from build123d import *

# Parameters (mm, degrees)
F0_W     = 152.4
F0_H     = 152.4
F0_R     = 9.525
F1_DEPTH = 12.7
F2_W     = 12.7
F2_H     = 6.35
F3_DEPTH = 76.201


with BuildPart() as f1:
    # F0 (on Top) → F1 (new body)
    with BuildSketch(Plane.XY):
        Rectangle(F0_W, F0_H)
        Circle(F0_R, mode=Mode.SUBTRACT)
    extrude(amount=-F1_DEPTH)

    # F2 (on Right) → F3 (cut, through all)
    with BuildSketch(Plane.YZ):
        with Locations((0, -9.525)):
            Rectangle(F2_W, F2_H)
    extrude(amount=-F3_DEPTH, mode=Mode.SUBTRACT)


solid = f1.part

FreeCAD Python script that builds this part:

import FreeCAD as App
import Part
import Sketcher

V = App.Vector
Q = App.Units.Quantity

doc = App.newDocument("Part")
body = doc.addObject("PartDesign::Body", "Body")

# Sketch on XY plane
sketch1 = doc.addObject("Sketcher::SketchObject", "Sketch")
body.addObject(sketch1)
sketch1.AttachmentSupport = (doc.XY_Plane, [""])
sketch1.MapMode = "FlatFace"
sketch1.addGeometry(Part.LineSegment(V(-76.2, 76.2, 0), V(-76.2, -76.2, 0)), False)
sketch1.addGeometry(Part.LineSegment(V(-76.2, -76.2, 0), V(76.2, -76.2, 0)), False)
sketch1.addGeometry(Part.LineSegment(V(76.2, -76.2, 0), V(76.2, 76.2, 0)), False)
sketch1.addGeometry(Part.LineSegment(V(76.2, 76.2, 0), V(-76.2, 76.2, 0)), False)
sketch1.addGeometry(Part.Circle(V(0, 0, 0), V(0, 0, 1), 9.525), False)
sketch1.addConstraint(Sketcher.Constraint("Coincident", 0, 2, 1, 1))
sketch1.addConstraint(Sketcher.Constraint("Coincident", 1, 2, 2, 1))
sketch1.addConstraint(Sketcher.Constraint("Coincident", 2, 2, 3, 1))
sketch1.addConstraint(Sketcher.Constraint("Coincident", 3, 2, 0, 1))
sketch1.addConstraint(Sketcher.Constraint("Vertical", 0))
sketch1.addConstraint(Sketcher.Constraint("Horizontal", 1))
sketch1.addConstraint(Sketcher.Constraint("Vertical", 2))
sketch1.addConstraint(Sketcher.Constraint("Horizontal", 3))
sketch1.addConstraint(Sketcher.Constraint("Coincident", 4, 3, -1, 1))
sketch1.addConstraint(Sketcher.Constraint("Symmetric", 0, 2, 2, 2, -1, 1))
sketch1.addConstraint(Sketcher.Constraint("Equal", 3, 0))
sketch1.addConstraint(Sketcher.Constraint("Diameter", 4, Q("0.75 in")))
sketch1.addConstraint(Sketcher.Constraint("DistanceX", 1, 1, 1, 2, Q("6 in")))
pad1 = doc.addObject("PartDesign::Pad", "Pad")
body.addObject(pad1)
pad1.Profile = sketch1
pad1.Length = Q("0.5 in")
pad1.Reversed = True

# Sketch on YZ plane
sketch2 = doc.addObject("Sketcher::SketchObject", "Sketch001")
body.addObject(sketch2)
sketch2.AttachmentSupport = (doc.YZ_Plane, [""])
sketch2.MapMode = "FlatFace"
sketch2.addGeometry(Part.LineSegment(V(-6.35, -6.35, 0), V(-6.35, -12.7, 0)), False)
sketch2.addGeometry(Part.LineSegment(V(-6.35, -12.7, 0), V(6.35, -12.7, 0)), False)
sketch2.addGeometry(Part.LineSegment(V(6.35, -12.7, 0), V(6.35, -6.35, 0)), False)
sketch2.addGeometry(Part.LineSegment(V(6.35, -6.35, 0), V(-6.35, -6.35, 0)), False)
sketch2.addConstraint(Sketcher.Constraint("Coincident", 0, 2, 1, 1))
sketch2.addConstraint(Sketcher.Constraint("Coincident", 1, 2, 2, 1))
sketch2.addConstraint(Sketcher.Constraint("Coincident", 2, 2, 3, 1))
sketch2.addConstraint(Sketcher.Constraint("Coincident", 3, 2, 0, 1))
sketch2.addConstraint(Sketcher.Constraint("Vertical", 0))
sketch2.addConstraint(Sketcher.Constraint("Horizontal", 1))
sketch2.addConstraint(Sketcher.Constraint("Vertical", 2))
sketch2.addConstraint(Sketcher.Constraint("Horizontal", 3))
sketch2.addConstraint(Sketcher.Constraint("DistanceX", 1, 1, 1, 2, Q("0.5 in")))
sketch2.addConstraint(Sketcher.Constraint("DistanceY", 0, 2, 0, 1, Q("0.25 in")))
sketch2.addConstraint(Sketcher.Constraint("DistanceY", 0, 2, -1, 1, Q("0.5 in")))
sketch2.addConstraint(Sketcher.Constraint("DistanceX", 0, 2, -1, 1, Q("0.25 in")))
pocket1 = doc.addObject("PartDesign::Pocket", "Pocket")
body.addObject(pocket1)
pocket1.Profile = sketch2
pocket1.Type = "ThroughAll"

doc.recompute()
